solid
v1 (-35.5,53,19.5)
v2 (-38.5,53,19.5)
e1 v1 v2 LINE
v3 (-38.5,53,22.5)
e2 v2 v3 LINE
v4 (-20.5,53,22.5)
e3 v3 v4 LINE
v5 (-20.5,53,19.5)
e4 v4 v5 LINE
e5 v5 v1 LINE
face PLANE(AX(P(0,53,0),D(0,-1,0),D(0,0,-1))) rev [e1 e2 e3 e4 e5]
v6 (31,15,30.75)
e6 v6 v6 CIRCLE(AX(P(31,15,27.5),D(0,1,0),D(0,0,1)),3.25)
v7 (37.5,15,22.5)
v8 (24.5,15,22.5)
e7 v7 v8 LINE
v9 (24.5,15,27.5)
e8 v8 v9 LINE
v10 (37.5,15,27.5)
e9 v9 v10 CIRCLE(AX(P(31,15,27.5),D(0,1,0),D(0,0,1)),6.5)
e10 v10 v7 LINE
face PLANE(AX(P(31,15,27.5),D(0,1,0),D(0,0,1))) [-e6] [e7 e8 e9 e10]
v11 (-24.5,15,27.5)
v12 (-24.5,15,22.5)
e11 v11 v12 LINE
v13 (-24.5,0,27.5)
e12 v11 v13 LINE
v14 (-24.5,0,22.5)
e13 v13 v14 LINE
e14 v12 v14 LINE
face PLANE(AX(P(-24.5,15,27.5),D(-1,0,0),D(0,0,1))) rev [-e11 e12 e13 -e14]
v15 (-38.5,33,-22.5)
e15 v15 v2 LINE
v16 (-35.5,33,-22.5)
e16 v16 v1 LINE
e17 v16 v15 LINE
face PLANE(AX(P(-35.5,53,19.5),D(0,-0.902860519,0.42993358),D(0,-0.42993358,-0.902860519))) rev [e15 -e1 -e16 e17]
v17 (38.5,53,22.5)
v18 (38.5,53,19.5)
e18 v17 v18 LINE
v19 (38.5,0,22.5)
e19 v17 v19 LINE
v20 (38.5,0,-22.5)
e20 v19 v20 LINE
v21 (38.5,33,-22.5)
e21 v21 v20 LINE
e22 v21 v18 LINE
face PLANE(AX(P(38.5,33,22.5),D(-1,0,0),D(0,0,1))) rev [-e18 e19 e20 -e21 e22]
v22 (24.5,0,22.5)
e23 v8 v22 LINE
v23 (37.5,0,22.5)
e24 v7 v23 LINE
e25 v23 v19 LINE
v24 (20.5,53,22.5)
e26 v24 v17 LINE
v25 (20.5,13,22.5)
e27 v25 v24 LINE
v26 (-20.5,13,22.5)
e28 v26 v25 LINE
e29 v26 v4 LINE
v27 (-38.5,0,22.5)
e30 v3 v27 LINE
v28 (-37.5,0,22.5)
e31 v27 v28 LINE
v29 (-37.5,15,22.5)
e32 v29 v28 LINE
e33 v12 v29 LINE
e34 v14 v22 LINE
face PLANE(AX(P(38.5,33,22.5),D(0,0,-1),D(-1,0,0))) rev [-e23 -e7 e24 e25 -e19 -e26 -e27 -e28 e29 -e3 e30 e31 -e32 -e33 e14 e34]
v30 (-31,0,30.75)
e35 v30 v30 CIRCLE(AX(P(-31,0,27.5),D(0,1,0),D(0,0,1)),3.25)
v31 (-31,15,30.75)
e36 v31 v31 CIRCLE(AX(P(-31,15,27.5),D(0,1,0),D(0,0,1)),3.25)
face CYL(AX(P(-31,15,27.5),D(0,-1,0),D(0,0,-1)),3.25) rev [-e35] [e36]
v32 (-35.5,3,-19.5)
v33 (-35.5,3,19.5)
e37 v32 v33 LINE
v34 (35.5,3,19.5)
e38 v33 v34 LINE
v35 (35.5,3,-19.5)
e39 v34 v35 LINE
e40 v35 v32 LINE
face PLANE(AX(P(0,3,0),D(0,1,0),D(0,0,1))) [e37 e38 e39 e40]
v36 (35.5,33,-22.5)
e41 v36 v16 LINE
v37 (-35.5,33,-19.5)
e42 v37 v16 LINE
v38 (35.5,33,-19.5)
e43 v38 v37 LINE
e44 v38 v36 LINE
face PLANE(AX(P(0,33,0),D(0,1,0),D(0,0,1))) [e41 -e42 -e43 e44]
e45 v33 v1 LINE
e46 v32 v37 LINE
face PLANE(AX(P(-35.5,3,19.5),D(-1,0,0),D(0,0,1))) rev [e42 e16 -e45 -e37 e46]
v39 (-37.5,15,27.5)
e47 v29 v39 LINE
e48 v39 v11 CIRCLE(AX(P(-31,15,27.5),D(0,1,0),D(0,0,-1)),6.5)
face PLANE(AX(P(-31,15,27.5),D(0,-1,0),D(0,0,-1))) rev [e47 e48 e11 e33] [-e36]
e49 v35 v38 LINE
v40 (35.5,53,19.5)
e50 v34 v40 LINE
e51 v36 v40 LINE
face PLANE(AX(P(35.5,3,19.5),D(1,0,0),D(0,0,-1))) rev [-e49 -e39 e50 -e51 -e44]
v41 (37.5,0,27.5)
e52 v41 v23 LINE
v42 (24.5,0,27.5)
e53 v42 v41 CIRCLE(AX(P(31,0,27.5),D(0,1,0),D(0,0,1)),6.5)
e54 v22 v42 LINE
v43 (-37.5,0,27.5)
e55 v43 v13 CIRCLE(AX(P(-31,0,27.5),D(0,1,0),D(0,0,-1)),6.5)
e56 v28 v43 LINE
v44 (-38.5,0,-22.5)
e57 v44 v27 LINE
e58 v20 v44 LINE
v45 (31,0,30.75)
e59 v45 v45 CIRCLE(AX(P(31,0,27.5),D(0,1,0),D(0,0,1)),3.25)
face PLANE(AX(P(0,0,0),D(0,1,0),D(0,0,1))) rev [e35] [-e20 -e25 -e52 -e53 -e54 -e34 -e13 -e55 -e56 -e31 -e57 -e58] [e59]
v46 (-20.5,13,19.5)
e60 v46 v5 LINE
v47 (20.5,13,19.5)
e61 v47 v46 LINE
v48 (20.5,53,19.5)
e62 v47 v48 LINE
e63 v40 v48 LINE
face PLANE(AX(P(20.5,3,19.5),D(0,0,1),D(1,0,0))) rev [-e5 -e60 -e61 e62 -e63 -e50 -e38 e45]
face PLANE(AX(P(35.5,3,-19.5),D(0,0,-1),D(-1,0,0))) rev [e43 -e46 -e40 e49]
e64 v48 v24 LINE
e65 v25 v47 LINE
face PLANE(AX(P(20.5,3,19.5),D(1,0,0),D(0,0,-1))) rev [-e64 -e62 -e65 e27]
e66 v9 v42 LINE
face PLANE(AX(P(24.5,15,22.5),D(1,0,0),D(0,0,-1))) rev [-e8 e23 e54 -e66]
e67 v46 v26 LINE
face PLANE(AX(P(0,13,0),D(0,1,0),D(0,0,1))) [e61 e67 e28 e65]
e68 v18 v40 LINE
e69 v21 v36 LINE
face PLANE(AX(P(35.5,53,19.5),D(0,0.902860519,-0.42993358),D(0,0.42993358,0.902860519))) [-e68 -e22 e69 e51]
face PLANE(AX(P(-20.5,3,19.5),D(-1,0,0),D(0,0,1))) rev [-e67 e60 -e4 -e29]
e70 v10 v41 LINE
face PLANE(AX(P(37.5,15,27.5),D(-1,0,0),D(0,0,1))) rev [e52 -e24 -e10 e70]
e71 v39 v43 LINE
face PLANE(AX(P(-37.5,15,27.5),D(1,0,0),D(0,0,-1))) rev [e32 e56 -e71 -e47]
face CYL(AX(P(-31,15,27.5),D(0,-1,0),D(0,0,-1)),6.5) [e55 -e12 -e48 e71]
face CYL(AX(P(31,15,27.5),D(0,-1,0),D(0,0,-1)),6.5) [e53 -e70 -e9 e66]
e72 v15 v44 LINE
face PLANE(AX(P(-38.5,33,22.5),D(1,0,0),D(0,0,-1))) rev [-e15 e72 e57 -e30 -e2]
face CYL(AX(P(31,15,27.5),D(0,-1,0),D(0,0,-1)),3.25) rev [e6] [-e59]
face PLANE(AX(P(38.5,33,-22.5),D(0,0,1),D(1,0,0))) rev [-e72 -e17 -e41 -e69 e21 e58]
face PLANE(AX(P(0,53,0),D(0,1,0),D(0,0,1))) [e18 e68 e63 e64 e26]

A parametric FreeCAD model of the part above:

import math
import FreeCAD as App
import Part
import Sketcher
from FreeCAD import Vector


def add_polygon(sketch, points):
    """Adds a closed chain of lines whose ends are joined by coincident constraints."""
    first, n = sketch.GeometryCount, len(points)
    for a, b in zip(points, points[1:] + points[:1]):
        sketch.addGeometry(Part.LineSegment(App.Vector(*a, 0), App.Vector(*b, 0)), False)
    for i in range(n):
        sketch.addConstraint(Sketcher.Constraint("Coincident", first + i, 2, first + (i + 1) % n, 1))

doc = App.newDocument("Part")
body = doc.addObject("PartDesign::Body", "Body")

# Sketch on XZ plane
sketch1 = body.newObject("Sketcher::SketchObject", "Sketch")
sketch1.AttachmentSupport = (doc.getObject("XZ_Plane"), [""])
sketch1.MapMode = "FlatFace"
add_polygon(sketch1, [(-38, -22), (-38, 22), (38, 22), (38, -22)])  # lines 0-3
sketch1.addConstraint([
    Sketcher.Constraint("Vertical", 0),
    Sketcher.Constraint("Horizontal", 1),
    Sketcher.Constraint("Vertical", 2),
    Sketcher.Constraint("Horizontal", 3),
    Sketcher.Constraint("Symmetric", 0, 2, 2, 2, -1, 1),
    Sketcher.Constraint("DistanceX", 1, 1, 1, 2, 77.0),
    Sketcher.Constraint("DistanceY", 0, 1, 0, 2, 45.0),
])
pad1 = body.newObject("PartDesign::Pad", "Pad")
pad1.Profile = sketch1
pad1.Length = 33
pad1.Reversed = True

# Sketch on XZ plane
sketch2 = body.newObject("Sketcher::SketchObject", "Sketch001")
sketch2.AttachmentSupport = (doc.getObject("XZ_Plane"), [""])
sketch2.MapMode = "FlatFace"
sketch2.AttachmentOffset = App.Placement(Vector(0, 0, -33), App.Rotation())
add_polygon(sketch2, [(35.5, 19.5), (35.5, -19.5), (-35.5, -19.5), (-35.5, 19.5), (-20.5, 19.5), (-20.5, 22.5), (20.5, 22.5), (20.5, 19.5)])  # lines 0-7
sketch2.addConstraint([
    Sketcher.Constraint("Vertical", 0),
    Sketcher.Constraint("Horizontal", 1),
    Sketcher.Constraint("Vertical", 2),
    Sketcher.Constraint("Horizontal", 3),
    Sketcher.Constraint("Vertical", 4),
    Sketcher.Constraint("Horizontal", 5),
    Sketcher.Constraint("Vertical", 6),
    Sketcher.Constraint("Horizontal", 7),
    Sketcher.Constraint("Symmetric", 0, 2, 2, 2, -1, 1),
    Sketcher.Constraint("Symmetric", 3, 2, 6, 2, -2),
    Sketcher.Constraint("DistanceX", 1, 2, 1, 1, 71.0),
    Sketcher.Constraint("DistanceX", 3, 1, 3, 2, 15.0),
    Sketcher.Constraint("DistanceY", 0, 2, 0, 1, 39.0),
    Sketcher.Constraint("DistanceY", 4, 1, 4, 2, 3.0),
])
pocket1 = body.newObject("PartDesign::Pocket", "Pocket")
pocket1.Profile = sketch2
pocket1.Length = 30
pocket1.Reversed = True

# Sketch on XZ plane
sketch3 = body.newObject("Sketcher::SketchObject", "Sketch002")
sketch3.AttachmentSupport = (doc.getObject("XZ_Plane"), [""])
sketch3.MapMode = "FlatFace"
sketch3.AttachmentOffset = App.Placement(Vector(0, 0, -33), App.Rotation())
add_polygon(sketch3, [(-38.5, 19.5), (-38.5, 22.5), (-20.5, 22.5), (-20.5, 19.5)])  # lines 0-3
add_polygon(sketch3, [(20.5, 19.5), (20.5, 22.5), (38.5, 22.5), (38.5, 19.5)])  # lines 4-7
sketch3.addConstraint([
    Sketcher.Constraint("Vertical", 0),
    Sketcher.Constraint("Horizontal", 1),
    Sketcher.Constraint("Vertical", 2),
    Sketcher.Constraint("Horizontal", 3),
    Sketcher.Constraint("Vertical", 4),
    Sketcher.Constraint("Horizontal", 5),
    Sketcher.Constraint("Vertical", 6),
    Sketcher.Constraint("Horizontal", 7),
    Sketcher.Constraint("Symmetric", 1, 2, 4, 2, -2),
    Sketcher.Constraint("Symmetric", 3, 2, 6, 2, -2),
    Sketcher.Constraint("DistanceX", 1, 1, 1, 2, 18.0),
    Sketcher.Constraint("DistanceY", 0, 1, 0, 2, 3.0),
    Sketcher.Constraint("DistanceX", 1, 2, 4, 2, 41.0),
    Sketcher.Constraint("DistanceY", -1, 1, 0, 2, 22.5),
])
pad2 = body.newObject("PartDesign::Pad", "Pad001")
pad2.Profile = sketch3
pad2.Length = 20
pad2.Reversed = True

# Sketch on YZ plane
sketch4 = body.newObject("Sketcher::SketchObject", "Sketch003")
sketch4.AttachmentSupport = (doc.getObject("YZ_Plane"), [""])
sketch4.MapMode = "FlatFace"
sketch4.AttachmentOffset = App.Placement(Vector(0, 0, 38.5), App.Rotation())
add_polygon(sketch4, [(33, 20), (33, -22), (53, 20)])  # lines 0-2
sketch4.addConstraint([
    Sketcher.Constraint("Vertical", 0),
    Sketcher.Constraint("Horizontal", 2),
    Sketcher.Constraint("DistanceX", 2, 2, 2, 1, 20.0),
    Sketcher.Constraint("DistanceY", 0, 2, 0, 1, 42.0),
    Sketcher.Constraint("DistanceX", -1, 1, 0, 2, 33.0),
    Sketcher.Constraint("DistanceY", 0, 2, -1, 1, 22.5),
])
pad3 = body.newObject("PartDesign::Pad", "Pad002")
pad3.Profile = sketch4
pad3.Length = 3
pad3.Reversed = True
doc.recompute()

mirrored = body.newObject("PartDesign::Mirrored", "Mirrored")
mirrored.Originals = [pad3]
mirrored.MirrorPlane = (doc.getObject("YZ_Plane"), [""])
body.Tip = mirrored

# Sketch on XZ plane
sketch5 = body.newObject("Sketcher::SketchObject", "Sketch004")
sketch5.AttachmentSupport = (doc.getObject("XZ_Plane"), [""])
sketch5.MapMode = "FlatFace"
sketch5.AttachmentOffset = App.Placement(Vector(0, 0, -3), App.Rotation())
add_polygon(sketch5, [(-20.5, 19.5), (-20.5, 22.5), (20.5, 22.5), (20.5, 19.5)])  # lines 0-3
sketch5.addConstraint([
    Sketcher.Constraint("Vertical", 0),
    Sketcher.Constraint("Horizontal", 1),
    Sketcher.Constraint("Vertical", 2),
    Sketcher.Constraint("Horizontal", 3),
    Sketcher.Constraint("DistanceX", 1, 1, 1, 2, 41.0),
    Sketcher.Constraint("DistanceY", 0, 1, 0, 2, 3.0),
    Sketcher.Constraint("DistanceX", 0, 2, -1, 1, 20.5),
    Sketcher.Constraint("DistanceY", -1, 1, 0, 2, 22.5),
])
pad4 = body.newObject("PartDesign::Pad", "Pad003")
pad4.Profile = sketch5
pad4.Length = 10
pad4.Reversed = True

# Sketch on XZ plane
sketch6 = body.newObject("Sketcher::SketchObject", "Sketch005")
sketch6.AttachmentSupport = (doc.getObject("XZ_Plane"), [""])
sketch6.MapMode = "FlatFace"
sketch6.addGeometry([
    Part.LineSegment(Vector(-37.5, 22.5, 0), Vector(-37.5, 27.5, 0)),  # 0
    Part.ArcOfCircle(Part.Circle(Vector(-31, 27.5, 0), Vector(0, 0, 1), 6.5), math.radians(0), math.radians(180)),  # 1
    Part.LineSegment(Vector(-24.5, 27.5, 0), Vector(-24.5, 22.5, 0)),  # 2
    Part.LineSegment(Vector(-24.5, 22.5, 0), Vector(-37.5, 22.5, 0)),  # 3
    Part.Circle(Vector(-31, 27.5, 0), Vector(0, 0, 1), 3.2),  # 4
    Part.LineSegment(Vector(37.5, 27.5, 0), Vector(37.5, 22.5, 0)),  # 5
    Part.LineSegment(Vector(37.5, 22.5, 0), Vector(24.5, 22.5, 0)),  # 6
    Part.LineSegment(Vector(24.5, 22.5, 0), Vector(24.5, 27.5, 0)),  # 7
    Part.ArcOfCircle(Part.Circle(Vector(31, 27.5, 0), Vector(0, 0, 1), 6.5), math.radians(0), math.radians(180)),  # 8
    Part.Circle(Vector(31, 27.5, 0), Vector(0, 0, 1), 3.2),  # 9
], False)
sketch6.addConstraint([
    Sketcher.Constraint("Tangent", 0, 2, 1, 2),
    Sketcher.Constraint("Tangent", 1, 1, 2, 1),
    Sketcher.Constraint("Coincident", 2, 2, 3, 1),
    Sketcher.Constraint("Coincident", 3, 2, 0, 1),
    Sketcher.Constraint("Coincident", 5, 2, 6, 1),
    Sketcher.Constraint("Coincident", 6, 2, 7, 1),
    Sketcher.Constraint("Tangent", 7, 2, 8, 2),
    Sketcher.Constraint("Tangent", 8, 1, 5, 1),
    Sketcher.Constraint("Vertical", 0),
    Sketcher.Constraint("Vertical", 2),
    Sketcher.Constraint("Horizontal", 3),
    Sketcher.Constraint("Vertical", 5),
    Sketcher.Constraint("Horizontal", 6),
    Sketcher.Constraint("Vertical", 7),
    Sketcher.Constraint("Coincident", 4, 3, 1, 3),
    Sketcher.Constraint("Coincident", 9, 3, 8, 3),
    Sketcher.Constraint("Equal", 1, 8),
    Sketcher.Constraint("Equal", 4, 9),
    Sketcher.Constraint("Symmetric", 1, 3, 8, 3, -2),
    Sketcher.Constraint("Horizontal", 3, 2, 5, 2),
    Sketcher.Constraint("Diameter", 4, 6.5),
    Sketcher.Constraint("Radius", 1, 6.5),
    Sketcher.Constraint("DistanceY", 0, 1, 0, 2, 5.0),
    Sketcher.Constraint("DistanceX", 1, 3, -1, 1, 31.0),
    Sketcher.Constraint("DistanceY", -1, 1, 1, 3, 27.5),
])
pad5 = body.newObject("PartDesign::Pad", "Pad004")
pad5.Profile = sketch6
pad5.Length = 15
pad5.Reversed = True

doc.recompute()
